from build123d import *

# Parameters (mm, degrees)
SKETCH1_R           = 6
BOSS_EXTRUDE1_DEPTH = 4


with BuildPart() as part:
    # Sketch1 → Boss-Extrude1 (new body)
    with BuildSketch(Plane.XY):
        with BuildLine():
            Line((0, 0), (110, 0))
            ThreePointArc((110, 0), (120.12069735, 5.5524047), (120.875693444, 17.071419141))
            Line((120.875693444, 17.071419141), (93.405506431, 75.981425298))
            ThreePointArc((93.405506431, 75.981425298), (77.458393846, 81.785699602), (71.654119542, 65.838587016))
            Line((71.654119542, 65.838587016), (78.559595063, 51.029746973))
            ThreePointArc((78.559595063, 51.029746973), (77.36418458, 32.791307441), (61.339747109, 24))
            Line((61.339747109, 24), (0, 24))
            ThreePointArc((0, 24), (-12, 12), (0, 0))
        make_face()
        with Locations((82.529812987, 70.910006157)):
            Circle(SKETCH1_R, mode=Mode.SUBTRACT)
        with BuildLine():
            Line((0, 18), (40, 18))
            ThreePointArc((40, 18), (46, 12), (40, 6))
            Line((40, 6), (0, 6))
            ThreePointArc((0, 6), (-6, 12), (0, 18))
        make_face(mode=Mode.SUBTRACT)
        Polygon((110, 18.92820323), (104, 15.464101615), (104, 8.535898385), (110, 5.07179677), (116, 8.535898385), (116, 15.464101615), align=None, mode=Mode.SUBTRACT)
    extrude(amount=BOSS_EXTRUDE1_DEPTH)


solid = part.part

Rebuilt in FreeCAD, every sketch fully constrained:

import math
import FreeCAD as App
import Part
import Sketcher

V = App.Vector
Q = App.Units.Quantity


def add_polygon(sketch, points):
    """Adds a closed chain of lines whose ends are joined by coincident constraints."""
    first, n = sketch.GeometryCount, len(points)
    for a, b in zip(points, points[1:] + points[:1]):
        sketch.addGeometry(Part.LineSegment(App.Vector(*a, 0), App.Vector(*b, 0)), False)
    for i in range(n):
        sketch.addConstraint(Sketcher.Constraint("Coincident", first + i, 2, first + (i + 1) % n, 1))

doc = App.newDocument("Part")
body = doc.addObject("PartDesign::Body", "Body")

sketch1 = body.newObject("Sketcher::SketchObject", "Sketch")
sketch1.AttachmentSupport = (doc.getObject("XY_Plane"), [""])
sketch1.MapMode = "FlatFace"
sketch1.addGeometry(Part.LineSegment(V(0, 0, 0), V(110, 0, 0)), False)
sketch1.addGeometry(Part.ArcOfCircle(Part.Circle(V(110, 12, 0), V(0, 0, 1), 12), math.radians(-90), math.radians(25)), False)
sketch1.addGeometry(Part.LineSegment(V(121, 17, 0), V(93, 76, 0)), False)
sketch1.addGeometry(Part.ArcOfCircle(Part.Circle(V(83, 71, 0), V(0, 0, 1), 12), math.radians(25), math.radians(205)), False)
sketch1.addGeometry(Part.LineSegment(V(72, 66, 0), V(79, 51, 0)), False)
sketch1.addGeometry(Part.ArcOfCircle(Part.Circle(V(61, 43, 0), V(0, 0, 1), 19), math.radians(-90), math.radians(25)), False)
sketch1.addGeometry(Part.LineSegment(V(61, 24, 0), V(0, 24, 0)), False)
sketch1.addGeometry(Part.ArcOfCircle(Part.Circle(V(0, 12, 0), V(0, 0, 1), 12), math.radians(90), math.radians(270)), False)
sketch1.addGeometry(Part.ArcOfCircle(Part.Circle(V(0, 12, 0), V(0, 0, 1), 6), math.radians(90), math.radians(270)), False)
sketch1.addGeometry(Part.LineSegment(V(0, 18, 0), V(40, 18, 0)), False)
sketch1.addGeometry(Part.ArcOfCircle(Part.Circle(V(40, 12, 0), V(0, 0, 1), 6), math.radians(-90), math.radians(90)), False)
sketch1.addGeometry(Part.LineSegment(V(40, 6, 0), V(0, 6, 0)), False)
add_polygon(sketch1, [(104, 15), (110, 19), (116, 15), (116, 9), (110, 5), (104, 9)])
sketch1.addGeometry(Part.Circle(V(83, 71, 0), V(0, 0, 1), 6), False)
sketch1.addConstraint([
    Sketcher.Constraint("Tangent", 0, 2, 1, 1),
    Sketcher.Constraint("Tangent", 1, 2, 2, 1),
    Sketcher.Constraint("Tangent", 2, 2, 3, 1),
    Sketcher.Constraint("Tangent", 3, 2, 4, 1),
    Sketcher.Constraint("Tangent", 4, 2, 5, 2),
    Sketcher.Constraint("Tangent", 5, 1, 6, 1),
    Sketcher.Constraint("Tangent", 6, 2, 7, 1),
    Sketcher.Constraint("Tangent", 7, 2, 0, 1),
    Sketcher.Constraint("Tangent", 8, 1, 9, 1),
    Sketcher.Constraint("Tangent", 9, 2, 10, 2),
    Sketcher.Constraint("Tangent", 10, 1, 11, 1),
    Sketcher.Constraint("Tangent", 11, 2, 8, 2),
    Sketcher.Constraint("Horizontal", 0),
    Sketcher.Constraint("Horizontal", 6),
    Sketcher.Constraint("Horizontal", 9),
    Sketcher.Constraint("Horizontal", 11),
    Sketcher.Constraint("Vertical", 14),
    Sketcher.Constraint("Vertical", 17),
    Sketcher.Constraint("Coincident", 7, 2, -1, 1),
    Sketcher.Constraint("Coincident", 8, 3, 7, 3),
    Sketcher.Constraint("Coincident", 18, 3, 3, 3),
    Sketcher.Constraint("Equal", 1, 3),
    Sketcher.Constraint("Equal", 3, 7),
    Sketcher.Constraint("Equal", 10, 18),
    Sketcher.Constraint("Parallel", 2, 4),
    Sketcher.Constraint("Parallel", 12, 15),
    Sketcher.Constraint("Parallel", 13, 16),
    Sketcher.Constraint("Horizontal", 14, 2, 16, 2),
    Sketcher.Constraint("Horizontal", 13, 2, 17, 2),
    Sketcher.Constraint("Vertical", 0, 2, 12, 2),
    Sketcher.Constraint("Vertical", 12, 2, 15, 2),
    Sketcher.Constraint("Diameter", 18, Q("12 mm")),
    Sketcher.Constraint("Radius", 1, Q("12 mm")),
    Sketcher.Constraint("Radius", 5, Q("19 mm")),
    Sketcher.Constraint("DistanceX", 0, 1, 0, 2, Q("110 mm")),
    Sketcher.Constraint("DistanceX", 9, 1, 9, 2, Q("40 mm")),
    Sketcher.Constraint("Angle", 2, Q("115 deg")),
    Sketcher.Constraint("Angle", 12, Q("30 deg")),
    Sketcher.Constraint("Distance", 2, Q("65 mm")),
    Sketcher.Constraint("DistanceX", -1, 1, 13, 2, Q("116 mm")),
    Sketcher.Constraint("DistanceY", -1, 1, 13, 2, Q("15.464102 mm")),
    Sketcher.Constraint("DistanceY", -1, 1, 14, 2, Q("8.535898 mm")),
])
pad1 = body.newObject("PartDesign::Pad", "Pad")
pad1.Profile = sketch1
pad1.Length = 4

doc.recompute()
